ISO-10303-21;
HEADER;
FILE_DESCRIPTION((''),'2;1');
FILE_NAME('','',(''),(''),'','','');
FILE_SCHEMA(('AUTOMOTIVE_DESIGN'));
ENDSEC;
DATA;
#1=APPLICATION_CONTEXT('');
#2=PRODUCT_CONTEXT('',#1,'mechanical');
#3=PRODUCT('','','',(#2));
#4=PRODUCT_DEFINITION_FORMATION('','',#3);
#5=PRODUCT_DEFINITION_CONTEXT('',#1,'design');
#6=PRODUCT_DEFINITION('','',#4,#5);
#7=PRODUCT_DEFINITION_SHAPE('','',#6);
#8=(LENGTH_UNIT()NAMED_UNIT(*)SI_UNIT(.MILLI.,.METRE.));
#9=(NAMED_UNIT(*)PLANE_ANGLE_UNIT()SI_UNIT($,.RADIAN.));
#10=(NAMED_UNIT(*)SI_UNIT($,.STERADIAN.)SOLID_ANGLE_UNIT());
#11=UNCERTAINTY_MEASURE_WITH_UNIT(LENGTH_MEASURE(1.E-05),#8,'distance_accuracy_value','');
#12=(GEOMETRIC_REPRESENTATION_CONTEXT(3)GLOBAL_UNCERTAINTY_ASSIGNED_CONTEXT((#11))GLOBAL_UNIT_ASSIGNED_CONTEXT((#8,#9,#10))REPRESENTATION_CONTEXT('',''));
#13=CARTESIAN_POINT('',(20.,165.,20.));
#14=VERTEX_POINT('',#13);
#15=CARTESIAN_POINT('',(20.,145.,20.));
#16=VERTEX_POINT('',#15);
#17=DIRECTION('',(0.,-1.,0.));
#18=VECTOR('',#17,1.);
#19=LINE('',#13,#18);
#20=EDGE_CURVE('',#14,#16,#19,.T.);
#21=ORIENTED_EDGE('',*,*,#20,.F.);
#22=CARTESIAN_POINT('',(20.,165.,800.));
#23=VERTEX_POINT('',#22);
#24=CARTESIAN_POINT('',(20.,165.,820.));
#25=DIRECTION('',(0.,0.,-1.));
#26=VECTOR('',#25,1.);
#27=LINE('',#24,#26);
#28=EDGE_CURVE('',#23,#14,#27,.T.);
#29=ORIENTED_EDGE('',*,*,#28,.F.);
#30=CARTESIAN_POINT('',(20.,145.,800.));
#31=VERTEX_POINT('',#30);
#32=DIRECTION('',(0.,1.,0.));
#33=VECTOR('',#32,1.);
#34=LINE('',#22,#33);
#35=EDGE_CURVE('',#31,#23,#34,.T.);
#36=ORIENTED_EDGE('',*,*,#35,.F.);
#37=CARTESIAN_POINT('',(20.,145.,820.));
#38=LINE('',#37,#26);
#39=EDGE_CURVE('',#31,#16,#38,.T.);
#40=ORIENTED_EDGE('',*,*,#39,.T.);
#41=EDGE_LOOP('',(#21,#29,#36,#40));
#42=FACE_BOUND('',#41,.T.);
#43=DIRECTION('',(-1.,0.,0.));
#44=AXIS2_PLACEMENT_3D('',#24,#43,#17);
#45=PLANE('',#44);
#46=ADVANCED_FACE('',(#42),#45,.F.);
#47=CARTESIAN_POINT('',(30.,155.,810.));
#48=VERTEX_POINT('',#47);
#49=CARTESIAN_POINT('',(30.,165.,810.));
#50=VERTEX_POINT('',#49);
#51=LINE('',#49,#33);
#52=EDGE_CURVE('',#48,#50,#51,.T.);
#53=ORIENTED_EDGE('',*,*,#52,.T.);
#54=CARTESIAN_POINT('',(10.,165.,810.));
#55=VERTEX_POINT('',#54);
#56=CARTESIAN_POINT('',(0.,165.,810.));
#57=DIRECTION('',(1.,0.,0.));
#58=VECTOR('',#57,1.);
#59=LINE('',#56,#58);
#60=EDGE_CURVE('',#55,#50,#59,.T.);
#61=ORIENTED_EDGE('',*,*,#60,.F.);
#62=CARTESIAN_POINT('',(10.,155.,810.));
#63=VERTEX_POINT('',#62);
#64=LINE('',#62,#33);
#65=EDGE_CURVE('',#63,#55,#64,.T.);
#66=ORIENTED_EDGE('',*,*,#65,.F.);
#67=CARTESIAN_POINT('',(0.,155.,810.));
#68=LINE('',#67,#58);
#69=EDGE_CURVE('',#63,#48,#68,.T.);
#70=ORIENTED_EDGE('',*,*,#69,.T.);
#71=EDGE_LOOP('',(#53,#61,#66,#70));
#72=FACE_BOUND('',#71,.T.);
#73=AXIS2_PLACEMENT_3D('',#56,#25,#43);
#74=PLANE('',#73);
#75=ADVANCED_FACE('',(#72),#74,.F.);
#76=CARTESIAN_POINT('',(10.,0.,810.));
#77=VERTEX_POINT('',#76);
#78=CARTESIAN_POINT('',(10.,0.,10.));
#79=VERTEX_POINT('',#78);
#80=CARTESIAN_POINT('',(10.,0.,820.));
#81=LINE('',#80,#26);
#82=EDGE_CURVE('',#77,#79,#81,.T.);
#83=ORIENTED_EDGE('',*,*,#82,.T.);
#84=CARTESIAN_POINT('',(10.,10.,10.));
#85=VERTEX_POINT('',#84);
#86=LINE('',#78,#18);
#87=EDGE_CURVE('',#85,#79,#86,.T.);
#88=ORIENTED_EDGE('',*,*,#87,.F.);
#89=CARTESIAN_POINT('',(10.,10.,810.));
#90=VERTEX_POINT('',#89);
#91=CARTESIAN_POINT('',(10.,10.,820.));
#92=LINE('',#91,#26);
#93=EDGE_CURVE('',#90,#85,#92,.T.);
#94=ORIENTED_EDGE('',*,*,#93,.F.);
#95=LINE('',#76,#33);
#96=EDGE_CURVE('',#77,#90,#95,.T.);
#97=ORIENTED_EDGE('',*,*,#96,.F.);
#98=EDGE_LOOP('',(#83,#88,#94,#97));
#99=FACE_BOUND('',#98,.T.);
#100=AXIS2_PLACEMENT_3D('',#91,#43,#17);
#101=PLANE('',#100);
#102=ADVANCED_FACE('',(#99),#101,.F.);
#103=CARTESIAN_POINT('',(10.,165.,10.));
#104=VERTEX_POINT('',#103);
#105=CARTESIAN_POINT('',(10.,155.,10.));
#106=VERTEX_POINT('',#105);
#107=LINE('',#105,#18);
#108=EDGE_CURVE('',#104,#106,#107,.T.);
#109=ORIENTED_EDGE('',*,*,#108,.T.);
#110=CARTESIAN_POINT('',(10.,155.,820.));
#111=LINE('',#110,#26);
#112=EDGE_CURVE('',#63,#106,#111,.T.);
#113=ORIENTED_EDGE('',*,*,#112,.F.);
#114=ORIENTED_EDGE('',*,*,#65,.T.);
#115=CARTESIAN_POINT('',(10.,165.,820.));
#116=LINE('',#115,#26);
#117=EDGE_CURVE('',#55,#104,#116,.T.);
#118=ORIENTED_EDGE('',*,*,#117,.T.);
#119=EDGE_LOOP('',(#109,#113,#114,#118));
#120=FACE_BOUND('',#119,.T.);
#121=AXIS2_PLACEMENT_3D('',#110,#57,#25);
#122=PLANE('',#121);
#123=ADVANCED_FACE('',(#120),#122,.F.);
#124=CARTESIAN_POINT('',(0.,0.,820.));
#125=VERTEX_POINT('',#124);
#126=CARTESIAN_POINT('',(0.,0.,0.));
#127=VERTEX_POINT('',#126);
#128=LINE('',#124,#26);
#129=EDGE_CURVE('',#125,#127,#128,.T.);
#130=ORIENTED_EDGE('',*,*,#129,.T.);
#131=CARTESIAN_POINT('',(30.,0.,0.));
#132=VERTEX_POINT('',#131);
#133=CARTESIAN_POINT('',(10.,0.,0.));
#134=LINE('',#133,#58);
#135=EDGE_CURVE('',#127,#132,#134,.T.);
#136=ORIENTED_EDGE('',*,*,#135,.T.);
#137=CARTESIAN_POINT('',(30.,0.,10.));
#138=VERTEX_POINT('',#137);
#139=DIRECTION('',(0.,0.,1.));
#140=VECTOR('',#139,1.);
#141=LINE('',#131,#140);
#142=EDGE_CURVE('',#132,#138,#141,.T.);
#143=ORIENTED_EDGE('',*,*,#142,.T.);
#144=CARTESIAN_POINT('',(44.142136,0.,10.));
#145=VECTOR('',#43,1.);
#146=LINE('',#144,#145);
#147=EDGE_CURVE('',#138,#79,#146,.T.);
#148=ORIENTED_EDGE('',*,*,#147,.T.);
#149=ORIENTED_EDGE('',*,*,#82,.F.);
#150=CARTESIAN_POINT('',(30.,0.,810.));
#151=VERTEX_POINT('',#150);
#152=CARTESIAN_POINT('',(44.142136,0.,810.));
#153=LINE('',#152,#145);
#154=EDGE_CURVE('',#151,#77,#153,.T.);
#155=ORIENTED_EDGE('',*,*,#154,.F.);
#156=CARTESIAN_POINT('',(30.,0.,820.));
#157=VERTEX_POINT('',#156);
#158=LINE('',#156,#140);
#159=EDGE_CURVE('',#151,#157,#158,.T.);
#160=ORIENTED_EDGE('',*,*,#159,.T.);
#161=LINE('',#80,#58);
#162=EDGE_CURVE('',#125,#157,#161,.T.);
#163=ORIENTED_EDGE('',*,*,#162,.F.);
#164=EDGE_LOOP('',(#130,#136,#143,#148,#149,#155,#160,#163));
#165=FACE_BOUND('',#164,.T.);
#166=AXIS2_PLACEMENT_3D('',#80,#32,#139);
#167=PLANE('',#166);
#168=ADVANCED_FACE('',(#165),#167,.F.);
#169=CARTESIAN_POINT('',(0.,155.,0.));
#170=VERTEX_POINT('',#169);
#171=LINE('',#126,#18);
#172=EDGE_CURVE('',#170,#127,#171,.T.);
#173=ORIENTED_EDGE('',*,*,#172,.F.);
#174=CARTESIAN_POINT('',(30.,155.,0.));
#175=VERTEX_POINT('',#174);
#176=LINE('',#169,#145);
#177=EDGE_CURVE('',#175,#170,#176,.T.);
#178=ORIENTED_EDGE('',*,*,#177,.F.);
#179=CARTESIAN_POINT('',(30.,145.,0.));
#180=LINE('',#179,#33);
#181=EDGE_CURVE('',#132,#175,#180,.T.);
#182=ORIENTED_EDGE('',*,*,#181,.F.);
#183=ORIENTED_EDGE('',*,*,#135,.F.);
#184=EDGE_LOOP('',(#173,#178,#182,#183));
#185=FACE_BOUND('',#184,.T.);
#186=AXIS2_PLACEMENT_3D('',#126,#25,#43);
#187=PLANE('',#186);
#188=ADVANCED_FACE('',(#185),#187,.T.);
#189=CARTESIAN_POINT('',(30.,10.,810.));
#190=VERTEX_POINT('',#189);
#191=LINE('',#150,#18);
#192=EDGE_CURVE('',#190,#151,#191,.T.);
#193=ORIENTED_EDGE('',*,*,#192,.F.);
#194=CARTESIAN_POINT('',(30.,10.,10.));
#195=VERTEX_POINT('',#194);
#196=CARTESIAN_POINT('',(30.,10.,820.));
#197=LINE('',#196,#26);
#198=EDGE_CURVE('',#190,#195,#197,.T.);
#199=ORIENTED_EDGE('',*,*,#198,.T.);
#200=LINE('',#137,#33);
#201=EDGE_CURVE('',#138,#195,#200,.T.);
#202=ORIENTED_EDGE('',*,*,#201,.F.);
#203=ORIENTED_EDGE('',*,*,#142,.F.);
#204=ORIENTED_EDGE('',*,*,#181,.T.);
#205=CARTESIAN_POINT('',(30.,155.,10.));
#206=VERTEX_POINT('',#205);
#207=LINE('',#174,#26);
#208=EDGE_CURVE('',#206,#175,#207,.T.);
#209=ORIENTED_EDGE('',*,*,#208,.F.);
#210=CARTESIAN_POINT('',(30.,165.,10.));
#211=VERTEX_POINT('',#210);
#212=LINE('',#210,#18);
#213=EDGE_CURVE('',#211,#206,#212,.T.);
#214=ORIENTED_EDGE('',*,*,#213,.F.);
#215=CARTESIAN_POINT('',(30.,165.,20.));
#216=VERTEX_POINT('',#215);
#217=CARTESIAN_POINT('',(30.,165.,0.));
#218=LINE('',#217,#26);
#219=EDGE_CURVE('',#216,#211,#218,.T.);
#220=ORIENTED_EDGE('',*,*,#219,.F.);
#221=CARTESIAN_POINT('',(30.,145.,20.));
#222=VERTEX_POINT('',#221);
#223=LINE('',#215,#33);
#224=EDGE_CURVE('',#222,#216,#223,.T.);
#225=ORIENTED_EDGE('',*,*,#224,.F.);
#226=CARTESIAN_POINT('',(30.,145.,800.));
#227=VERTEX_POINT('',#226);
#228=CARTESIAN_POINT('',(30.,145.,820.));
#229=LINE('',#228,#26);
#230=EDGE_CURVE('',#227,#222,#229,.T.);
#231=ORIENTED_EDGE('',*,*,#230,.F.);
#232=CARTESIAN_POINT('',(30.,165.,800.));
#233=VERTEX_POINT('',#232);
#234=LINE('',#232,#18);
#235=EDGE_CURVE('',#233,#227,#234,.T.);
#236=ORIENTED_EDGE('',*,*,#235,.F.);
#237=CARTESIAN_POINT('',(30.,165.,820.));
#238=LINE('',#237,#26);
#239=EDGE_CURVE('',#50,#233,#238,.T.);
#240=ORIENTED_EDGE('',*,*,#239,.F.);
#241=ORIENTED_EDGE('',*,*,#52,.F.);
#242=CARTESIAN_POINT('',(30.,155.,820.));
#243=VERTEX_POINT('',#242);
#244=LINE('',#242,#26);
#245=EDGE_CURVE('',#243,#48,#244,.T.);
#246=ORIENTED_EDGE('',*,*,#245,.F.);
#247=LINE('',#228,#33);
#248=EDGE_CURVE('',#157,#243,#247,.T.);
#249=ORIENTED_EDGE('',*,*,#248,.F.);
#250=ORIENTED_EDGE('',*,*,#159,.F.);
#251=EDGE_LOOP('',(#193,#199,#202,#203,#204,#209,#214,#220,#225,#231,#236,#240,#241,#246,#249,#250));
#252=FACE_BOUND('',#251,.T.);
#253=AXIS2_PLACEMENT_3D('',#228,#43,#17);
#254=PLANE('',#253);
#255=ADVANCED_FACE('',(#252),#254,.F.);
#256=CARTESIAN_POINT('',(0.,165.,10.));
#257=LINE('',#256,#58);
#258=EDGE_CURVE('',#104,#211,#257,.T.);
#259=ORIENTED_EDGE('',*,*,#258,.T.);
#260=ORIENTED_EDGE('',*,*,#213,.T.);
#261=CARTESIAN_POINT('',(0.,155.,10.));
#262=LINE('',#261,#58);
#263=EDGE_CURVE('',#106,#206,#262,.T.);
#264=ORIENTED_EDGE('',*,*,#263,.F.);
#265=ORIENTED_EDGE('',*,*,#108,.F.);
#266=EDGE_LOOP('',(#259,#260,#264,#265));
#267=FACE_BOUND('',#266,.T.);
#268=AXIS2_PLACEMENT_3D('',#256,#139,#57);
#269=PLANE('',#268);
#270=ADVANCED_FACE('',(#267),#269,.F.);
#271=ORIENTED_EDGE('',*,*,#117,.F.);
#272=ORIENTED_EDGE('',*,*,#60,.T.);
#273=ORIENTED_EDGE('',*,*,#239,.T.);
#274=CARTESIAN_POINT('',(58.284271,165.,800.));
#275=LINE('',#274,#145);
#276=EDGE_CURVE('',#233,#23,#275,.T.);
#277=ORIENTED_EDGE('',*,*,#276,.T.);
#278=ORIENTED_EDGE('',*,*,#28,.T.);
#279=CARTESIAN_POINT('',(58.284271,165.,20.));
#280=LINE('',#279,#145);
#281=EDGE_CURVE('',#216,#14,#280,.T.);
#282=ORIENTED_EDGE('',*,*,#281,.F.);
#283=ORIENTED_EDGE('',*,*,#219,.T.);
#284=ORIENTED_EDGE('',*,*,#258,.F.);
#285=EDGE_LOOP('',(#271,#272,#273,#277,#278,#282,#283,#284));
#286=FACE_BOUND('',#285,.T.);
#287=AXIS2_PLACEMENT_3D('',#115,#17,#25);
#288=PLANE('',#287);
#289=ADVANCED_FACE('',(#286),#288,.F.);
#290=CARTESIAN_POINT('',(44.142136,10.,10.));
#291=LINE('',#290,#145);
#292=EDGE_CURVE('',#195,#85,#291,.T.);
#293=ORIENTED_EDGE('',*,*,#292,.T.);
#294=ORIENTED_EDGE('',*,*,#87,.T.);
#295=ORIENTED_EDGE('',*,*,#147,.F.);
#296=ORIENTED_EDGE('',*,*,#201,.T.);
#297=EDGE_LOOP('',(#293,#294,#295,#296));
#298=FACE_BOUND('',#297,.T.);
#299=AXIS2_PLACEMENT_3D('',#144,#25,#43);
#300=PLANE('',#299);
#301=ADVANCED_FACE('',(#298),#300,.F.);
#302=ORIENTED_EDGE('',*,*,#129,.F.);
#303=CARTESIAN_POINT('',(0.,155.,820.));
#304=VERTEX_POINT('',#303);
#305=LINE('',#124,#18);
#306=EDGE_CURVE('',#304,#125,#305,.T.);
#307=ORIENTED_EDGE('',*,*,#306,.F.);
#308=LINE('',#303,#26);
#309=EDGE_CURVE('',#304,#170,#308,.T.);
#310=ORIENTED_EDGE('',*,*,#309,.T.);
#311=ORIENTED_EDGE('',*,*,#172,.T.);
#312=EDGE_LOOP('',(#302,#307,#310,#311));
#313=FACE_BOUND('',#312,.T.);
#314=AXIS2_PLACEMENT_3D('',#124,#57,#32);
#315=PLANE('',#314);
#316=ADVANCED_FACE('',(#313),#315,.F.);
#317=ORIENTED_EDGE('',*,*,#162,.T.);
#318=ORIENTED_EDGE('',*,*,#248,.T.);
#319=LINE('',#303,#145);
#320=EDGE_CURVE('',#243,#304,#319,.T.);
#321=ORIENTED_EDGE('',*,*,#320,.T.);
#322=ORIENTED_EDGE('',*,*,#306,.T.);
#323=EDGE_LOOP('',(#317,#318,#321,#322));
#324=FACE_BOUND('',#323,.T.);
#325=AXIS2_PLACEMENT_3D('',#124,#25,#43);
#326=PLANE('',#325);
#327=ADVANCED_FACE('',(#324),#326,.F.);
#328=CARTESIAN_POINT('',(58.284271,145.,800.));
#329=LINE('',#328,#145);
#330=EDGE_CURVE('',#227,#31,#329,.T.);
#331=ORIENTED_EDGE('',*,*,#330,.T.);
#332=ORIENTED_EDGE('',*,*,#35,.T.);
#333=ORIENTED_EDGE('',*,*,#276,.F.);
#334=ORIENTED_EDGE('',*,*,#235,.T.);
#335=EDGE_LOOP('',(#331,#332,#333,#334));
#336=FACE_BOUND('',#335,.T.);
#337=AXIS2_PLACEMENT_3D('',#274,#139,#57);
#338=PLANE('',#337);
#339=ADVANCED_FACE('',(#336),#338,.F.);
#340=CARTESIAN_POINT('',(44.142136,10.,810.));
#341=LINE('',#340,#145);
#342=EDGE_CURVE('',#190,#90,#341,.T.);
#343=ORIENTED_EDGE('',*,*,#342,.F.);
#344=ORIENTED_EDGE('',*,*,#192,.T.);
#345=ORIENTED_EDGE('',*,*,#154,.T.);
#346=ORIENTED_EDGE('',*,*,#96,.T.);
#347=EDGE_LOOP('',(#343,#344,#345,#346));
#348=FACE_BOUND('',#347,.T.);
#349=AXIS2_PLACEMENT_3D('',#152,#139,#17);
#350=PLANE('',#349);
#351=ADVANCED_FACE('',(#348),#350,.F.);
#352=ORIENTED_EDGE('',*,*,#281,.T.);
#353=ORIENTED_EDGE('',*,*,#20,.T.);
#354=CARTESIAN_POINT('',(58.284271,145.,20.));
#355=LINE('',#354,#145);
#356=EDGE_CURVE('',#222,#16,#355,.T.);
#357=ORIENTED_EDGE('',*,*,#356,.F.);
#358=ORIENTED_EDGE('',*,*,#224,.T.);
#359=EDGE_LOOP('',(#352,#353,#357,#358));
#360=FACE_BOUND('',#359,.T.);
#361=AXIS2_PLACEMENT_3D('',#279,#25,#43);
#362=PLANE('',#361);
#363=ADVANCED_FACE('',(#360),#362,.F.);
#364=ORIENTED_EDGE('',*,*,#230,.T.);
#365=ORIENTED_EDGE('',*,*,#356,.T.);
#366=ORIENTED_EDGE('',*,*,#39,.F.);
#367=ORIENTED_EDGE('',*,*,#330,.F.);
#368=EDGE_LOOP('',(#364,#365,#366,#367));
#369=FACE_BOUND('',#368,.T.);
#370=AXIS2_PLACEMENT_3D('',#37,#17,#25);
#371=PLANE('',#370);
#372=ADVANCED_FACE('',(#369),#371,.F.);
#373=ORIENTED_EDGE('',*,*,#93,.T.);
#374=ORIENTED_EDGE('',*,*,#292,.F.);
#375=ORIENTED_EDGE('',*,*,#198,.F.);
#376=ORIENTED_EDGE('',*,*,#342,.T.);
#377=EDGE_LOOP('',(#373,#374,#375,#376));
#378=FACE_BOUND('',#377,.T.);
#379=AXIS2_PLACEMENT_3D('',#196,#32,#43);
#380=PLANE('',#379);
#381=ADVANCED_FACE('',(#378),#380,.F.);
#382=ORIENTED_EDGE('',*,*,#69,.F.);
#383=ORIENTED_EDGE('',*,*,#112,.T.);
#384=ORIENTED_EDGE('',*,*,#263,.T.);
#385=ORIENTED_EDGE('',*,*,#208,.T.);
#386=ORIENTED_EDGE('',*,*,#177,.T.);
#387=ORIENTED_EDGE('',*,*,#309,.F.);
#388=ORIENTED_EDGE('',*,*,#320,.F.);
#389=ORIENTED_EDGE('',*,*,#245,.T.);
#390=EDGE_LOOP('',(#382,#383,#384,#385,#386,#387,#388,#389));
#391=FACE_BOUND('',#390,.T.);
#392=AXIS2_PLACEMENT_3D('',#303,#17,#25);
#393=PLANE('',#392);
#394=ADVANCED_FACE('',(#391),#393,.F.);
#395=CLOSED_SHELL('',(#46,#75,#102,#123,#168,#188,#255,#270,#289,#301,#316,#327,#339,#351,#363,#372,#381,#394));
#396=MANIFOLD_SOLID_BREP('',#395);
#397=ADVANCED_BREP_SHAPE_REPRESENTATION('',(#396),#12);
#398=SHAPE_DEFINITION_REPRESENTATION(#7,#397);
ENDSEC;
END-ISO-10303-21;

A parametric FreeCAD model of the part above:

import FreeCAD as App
import Part
import Sketcher
from FreeCAD import Vector


def add_polygon(sketch, points):
    """Adds a closed chain of lines whose ends are joined by coincident constraints."""
    first, n = sketch.GeometryCount, len(points)
    for a, b in zip(points, points[1:] + points[:1]):
        sketch.addGeometry(Part.LineSegment(App.Vector(*a, 0), App.Vector(*b, 0)), False)
    for i in range(n):
        sketch.addConstraint(Sketcher.Constraint("Coincident", first + i, 2, first + (i + 1) % n, 1))

doc = App.newDocument("Part")
body = doc.addObject("PartDesign::Body", "Body")

sketch1 = body.newObject("Sketcher::SketchObject", "Sketch")
sketch1.AttachmentSupport = (doc.getObject("XY_Plane"), [""])
sketch1.MapMode = "FlatFace"
add_polygon(sketch1, [(0, 155), (0, 0), (10, 0), (10, 10), (30, 10), (30, 145), (20, 145), (20, 165), (10, 165), (10, 155)])
sketch1.addConstraint(Sketcher.Constraint("Vertical", 0))
sketch1.addConstraint(Sketcher.Constraint("Horizontal", 1))
sketch1.addConstraint(Sketcher.Constraint("Vertical", 2))
sketch1.addConstraint(Sketcher.Constraint("Horizontal", 3))
sketch1.addConstraint(Sketcher.Constraint("Vertical", 4))
sketch1.addConstraint(Sketcher.Constraint("Horizontal", 5))
sketch1.addConstraint(Sketcher.Constraint("Vertical", 6))
sketch1.addConstraint(Sketcher.Constraint("Horizontal", 7))
sketch1.addConstraint(Sketcher.Constraint("Vertical", 8))
sketch1.addConstraint(Sketcher.Constraint("Horizontal", 9))
sketch1.addConstraint(Sketcher.Constraint("Coincident", 0, 2, -1, 1))
sketch1.addConstraint(Sketcher.Constraint("Vertical", 2, 2, 7, 2))
sketch1.addConstraint(Sketcher.Constraint("Equal", 1, 5))
sketch1.addConstraint(Sketcher.Constraint("Equal", 5, 7))
sketch1.addConstraint(Sketcher.Constraint("Equal", 9, 2))
sketch1.addConstraint(Sketcher.Constraint("Equal", 3, 6))
sketch1.addConstraint(Sketcher.Constraint("Equal", 2, 8))
sketch1.addConstraint(Sketcher.Constraint("DistanceX", 1, 1, 1, 2, 10.0))
sketch1.addConstraint(Sketcher.Constraint("DistanceY", 0, 2, 0, 1, 155.0))
pad1 = body.newObject("PartDesign::Pad", "Pad")
pad1.Profile = sketch1
pad1.Length = 820

sketch2 = body.newObject("Sketcher::SketchObject", "Sketch001")
sketch2.AttachmentSupport = (doc.getObject("YZ_Plane"), [""])
sketch2.MapMode = "FlatFace"
sketch2.AttachmentOffset = App.Placement(Vector(0, 0, 10), App.Rotation())
add_polygon(sketch2, [(10, 820), (0, 820), (0, 810), (10, 810)])
add_polygon(sketch2, [(10, 10), (0, 10), (0, 0), (10, 0)])
sketch2.addConstraint(Sketcher.Constraint("Horizontal", 0))
sketch2.addConstraint(Sketcher.Constraint("Vertical", 1))
sketch2.addConstraint(Sketcher.Constraint("Horizontal", 2))
sketch2.addConstraint(Sketcher.Constraint("Vertical", 3))
sketch2.addConstraint(Sketcher.Constraint("Horizontal", 4))
sketch2.addConstraint(Sketcher.Constraint("Vertical", 5))
sketch2.addConstraint(Sketcher.Constraint("Horizontal", 6))
sketch2.addConstraint(Sketcher.Constraint("Vertical", 7))
sketch2.addConstraint(Sketcher.Constraint("Coincident", 5, 2, -1, 1))
sketch2.addConstraint(Sketcher.Constraint("PointOnObject", 0, 2, -2))
sketch2.addConstraint(Sketcher.Constraint("Vertical", 3, 2, 6, 2))
sketch2.addConstraint(Sketcher.Constraint("Equal", 6, 1))
sketch2.addConstraint(Sketcher.Constraint("Equal", 3, 5))
sketch2.addConstraint(Sketcher.Constraint("DistanceX", 0, 2, 0, 1, 10.0))
sketch2.addConstraint(Sketcher.Constraint("DistanceY", -1, 1, 0, 2, 820.0))
pad2 = body.newObject("PartDesign::Pad", "Pad001")
pad2.Profile = sketch2
pad2.Length = 20

sketch3 = body.newObject("Sketcher::SketchObject", "Sketch002")
sketch3.AttachmentSupport = (doc.getObject("YZ_Plane"), [""])
sketch3.MapMode = "FlatFace"
sketch3.AttachmentOffset = App.Placement(Vector(0, 0, 20), App.Rotation())
add_polygon(sketch3, [(165, 820), (145, 820), (145, 800), (165, 800)])
add_polygon(sketch3, [(165, 20), (145, 20), (145, 0), (165, 0)])
sketch3.addConstraint(Sketcher.Constraint("Horizontal", 0))
sketch3.addConstraint(Sketcher.Constraint("Vertical", 1))
sketch3.addConstraint(Sketcher.Constraint("Horizontal", 2))
sketch3.addConstraint(Sketcher.Constraint("Vertical", 3))
sketch3.addConstraint(Sketcher.Constraint("Horizontal", 4))
sketch3.addConstraint(Sketcher.Constraint("Vertical", 5))
sketch3.addConstraint(Sketcher.Constraint("Horizontal", 6))
sketch3.addConstraint(Sketcher.Constraint("Vertical", 7))
sketch3.addConstraint(Sketcher.Constraint("PointOnObject", 5, 2, -1))
sketch3.addConstraint(Sketcher.Constraint("Vertical", 1, 2, 4, 2))
sketch3.addConstraint(Sketcher.Constraint("Vertical", 3, 2, 6, 2))
sketch3.addConstraint(Sketcher.Constraint("Equal", 6, 1))
sketch3.addConstraint(Sketcher.Constraint("Equal", 3, 5))
sketch3.addConstraint(Sketcher.Constraint("DistanceX", 0, 2, 0, 1, 20.0))
sketch3.addConstraint(Sketcher.Constraint("DistanceX", -1, 1, 0, 2, 145.0))
sketch3.addConstraint(Sketcher.Constraint("DistanceY", -1, 1, 0, 2, 820.0))
pad3 = body.newObject("PartDesign::Pad", "Pad002")
pad3.Profile = sketch3
pad3.Length = 10

sketch4 = body.newObject("Sketcher::SketchObject", "Sketch003")
sketch4.AttachmentSupport = (doc.getObject("YZ_Plane"), [""])
sketch4.MapMode = "FlatFace"
sketch4.AttachmentOffset = App.Placement(Vector(0, 0, 30), App.Rotation())
add_polygon(sketch4, [(165, 820), (155, 820), (155, 810), (165, 810)])
add_polygon(sketch4, [(165, 10), (155, 10), (155, 0), (165, 0)])
sketch4.addConstraint(Sketcher.Constraint("Horizontal", 0))
sketch4.addConstraint(Sketcher.Constraint("Vertical", 1))
sketch4.addConstraint(Sketcher.Constraint("Horizontal", 2))
sketch4.addConstraint(Sketcher.Constraint("Vertical", 3))
sketch4.addConstraint(Sketcher.Constraint("Horizontal", 4))
sketch4.addConstraint(Sketcher.Constraint("Vertical", 5))
sketch4.addConstraint(Sketcher.Constraint("Horizontal", 6))
sketch4.addConstraint(Sketcher.Constraint("Vertical", 7))
sketch4.addConstraint(Sketcher.Constraint("PointOnObject", 5, 2, -1))
sketch4.addConstraint(Sketcher.Constraint("Vertical", 1, 2, 4, 2))
sketch4.addConstraint(Sketcher.Constraint("Vertical", 3, 2, 6, 2))
sketch4.addConstraint(Sketcher.Constraint("Equal", 6, 1))
sketch4.addConstraint(Sketcher.Constraint("Equal", 3, 5))
sketch4.addConstraint(Sketcher.Constraint("DistanceX", 0, 2, 0, 1, 10.0))
sketch4.addConstraint(Sketcher.Constraint("DistanceX", -1, 1, 0, 2, 155.0))
sketch4.addConstraint(Sketcher.Constraint("DistanceY", -1, 1, 0, 2, 820.0))
pocket1 = body.newObject("PartDesign::Pocket", "Pocket")
pocket1.Profile = sketch4
pocket1.Type = "ThroughAll"

doc.recompute()
